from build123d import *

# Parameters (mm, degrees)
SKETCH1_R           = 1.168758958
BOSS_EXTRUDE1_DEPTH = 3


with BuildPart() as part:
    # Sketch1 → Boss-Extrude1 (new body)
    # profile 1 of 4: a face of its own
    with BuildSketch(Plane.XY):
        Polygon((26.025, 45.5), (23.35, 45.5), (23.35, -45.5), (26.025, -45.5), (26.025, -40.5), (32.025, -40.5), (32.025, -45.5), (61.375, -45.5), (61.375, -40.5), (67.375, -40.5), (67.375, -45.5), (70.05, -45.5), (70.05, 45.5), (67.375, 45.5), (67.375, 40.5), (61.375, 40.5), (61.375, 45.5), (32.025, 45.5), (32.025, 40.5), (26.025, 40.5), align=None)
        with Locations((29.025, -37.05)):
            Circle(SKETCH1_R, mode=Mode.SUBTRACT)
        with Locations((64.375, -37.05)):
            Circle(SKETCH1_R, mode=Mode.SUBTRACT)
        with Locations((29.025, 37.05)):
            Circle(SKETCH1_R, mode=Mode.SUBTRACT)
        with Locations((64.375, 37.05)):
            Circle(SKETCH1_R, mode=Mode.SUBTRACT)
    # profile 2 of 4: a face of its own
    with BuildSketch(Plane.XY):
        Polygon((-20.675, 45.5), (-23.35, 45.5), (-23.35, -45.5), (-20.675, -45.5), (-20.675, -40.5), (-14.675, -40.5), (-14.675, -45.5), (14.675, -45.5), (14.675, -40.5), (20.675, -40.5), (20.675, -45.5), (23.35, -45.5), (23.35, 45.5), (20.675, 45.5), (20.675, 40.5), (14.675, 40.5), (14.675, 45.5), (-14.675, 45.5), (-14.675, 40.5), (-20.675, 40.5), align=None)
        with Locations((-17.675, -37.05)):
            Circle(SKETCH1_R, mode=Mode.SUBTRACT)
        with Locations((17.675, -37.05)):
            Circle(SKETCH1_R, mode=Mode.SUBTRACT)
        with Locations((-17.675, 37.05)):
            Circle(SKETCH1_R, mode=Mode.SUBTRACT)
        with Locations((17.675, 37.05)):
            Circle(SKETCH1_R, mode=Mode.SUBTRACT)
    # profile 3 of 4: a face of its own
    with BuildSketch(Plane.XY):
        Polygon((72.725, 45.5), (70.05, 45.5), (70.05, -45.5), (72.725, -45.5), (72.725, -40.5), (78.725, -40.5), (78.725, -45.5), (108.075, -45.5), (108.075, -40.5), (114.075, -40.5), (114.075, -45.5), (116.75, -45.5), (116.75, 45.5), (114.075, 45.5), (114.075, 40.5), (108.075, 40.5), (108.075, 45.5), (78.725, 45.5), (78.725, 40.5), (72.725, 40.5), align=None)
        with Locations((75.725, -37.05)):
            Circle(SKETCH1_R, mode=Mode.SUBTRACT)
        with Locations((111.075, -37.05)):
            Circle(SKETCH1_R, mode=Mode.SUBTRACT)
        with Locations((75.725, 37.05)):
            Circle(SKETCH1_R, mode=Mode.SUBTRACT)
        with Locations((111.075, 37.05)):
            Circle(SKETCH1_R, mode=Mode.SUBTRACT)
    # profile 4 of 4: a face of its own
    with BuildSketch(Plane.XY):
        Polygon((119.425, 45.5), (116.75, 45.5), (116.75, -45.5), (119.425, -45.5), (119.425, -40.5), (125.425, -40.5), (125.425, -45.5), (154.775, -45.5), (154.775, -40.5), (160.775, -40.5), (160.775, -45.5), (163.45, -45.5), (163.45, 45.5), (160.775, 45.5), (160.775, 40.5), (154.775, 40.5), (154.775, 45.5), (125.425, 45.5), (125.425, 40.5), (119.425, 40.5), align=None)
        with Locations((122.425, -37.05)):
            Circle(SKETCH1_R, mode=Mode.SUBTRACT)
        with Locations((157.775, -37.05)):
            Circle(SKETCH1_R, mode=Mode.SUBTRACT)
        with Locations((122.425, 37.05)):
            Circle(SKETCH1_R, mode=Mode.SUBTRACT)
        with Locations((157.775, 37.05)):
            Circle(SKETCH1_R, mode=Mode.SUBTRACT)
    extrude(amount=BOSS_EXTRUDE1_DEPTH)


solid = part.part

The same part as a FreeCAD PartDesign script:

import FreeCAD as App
import Part
import Sketcher

V = App.Vector


def add_polygon(sketch, points):
    """Adds a closed chain of lines whose ends are joined by coincident constraints."""
    first, n = sketch.GeometryCount, len(points)
    for a, b in zip(points, points[1:] + points[:1]):
        sketch.addGeometry(Part.LineSegment(App.Vector(*a, 0), App.Vector(*b, 0)), False)
    for i in range(n):
        sketch.addConstraint(Sketcher.Constraint("Coincident", first + i, 2, first + (i + 1) % n, 1))

doc = App.newDocument("Part")
body = doc.addObject("PartDesign::Body", "Body")

# Sketch on XY plane
sketch1 = body.newObject("Sketcher::SketchObject", "Sketch")
sketch1.AttachmentSupport = (doc.getObject("XY_Plane"), [""])
sketch1.MapMode = "FlatFace"
add_polygon(sketch1, [(26.025, 45.5), (20.675, 45.5), (20.675, 40.5), (14.675, 40.5), (14.675, 45.5), (-14.675, 45.5), (-14.675, 40.5), (-20.675, 40.5), (-20.675, 45.5), (-23.35, 45.5), (-23.35, -45.5), (-20.675, -45.5), (-20.675, -40.5), (-14.675, -40.5), (-14.675, -45.5), (14.675, -45.5), (14.675, -40.5), (20.675, -40.5), (20.675, -45.5), (26.025, -45.5), (26.025, -40.5), (32.025, -40.5), (32.025, -45.5), (61.375, -45.5), (61.375, -40.5), (67.375, -40.5), (67.375, -45.5), (72.725, -45.5), (72.725, -40.5), (78.725, -40.5), (78.725, -45.5), (108.075, -45.5), (108.075, -40.5), (114.075, -40.5), (114.075, -45.5), (119.425, -45.5), (119.425, -40.5), (125.425, -40.5), (125.425, -45.5), (154.775, -45.5), (154.775, -40.5), (160.775, -40.5), (160.775, -45.5), (163.45, -45.5), (163.45, 45.5), (160.775, 45.5), (160.775, 40.5), (154.775, 40.5), (154.775, 45.5), (125.425, 45.5), (125.425, 40.5), (119.425, 40.5), (119.425, 45.5), (114.075, 45.5), (114.075, 40.5), (108.075, 40.5), (108.075, 45.5), (78.725, 45.5), (78.725, 40.5), (72.725, 40.5), (72.725, 45.5), (67.375, 45.5), (67.375, 40.5), (61.375, 40.5), (61.375, 45.5), (32.025, 45.5), (32.025, 40.5), (26.025, 40.5)])  # lines 0-67
sketch1.addGeometry(Part.Circle(V(29.025, -37.05, 0), V(0, 0, 1), 1.168759), False)  # 68
sketch1.addGeometry(Part.Circle(V(64.375, -37.05, 0), V(0, 0, 1), 1.168759), False)  # 69
sketch1.addGeometry(Part.Circle(V(29.025, 37.05, 0), V(0, 0, 1), 1.168759), False)  # 70
sketch1.addGeometry(Part.Circle(V(64.375, 37.05, 0), V(0, 0, 1), 1.168759), False)  # 71
sketch1.addGeometry(Part.Circle(V(17.675, 37.05, 0), V(0, 0, 1), 1.168759), False)  # 72
sketch1.addGeometry(Part.Circle(V(-17.675, -37.05, 0), V(0, 0, 1), 1.168759), False)  # 73
sketch1.addGeometry(Part.Circle(V(17.675, -37.05, 0), V(0, 0, 1), 1.168759), False)  # 74
sketch1.addGeometry(Part.Circle(V(-17.675, 37.05, 0), V(0, 0, 1), 1.168759), False)  # 75
sketch1.addGeometry(Part.Circle(V(111.075, 37.05, 0), V(0, 0, 1), 1.168759), False)  # 76
sketch1.addGeometry(Part.Circle(V(75.725, -37.05, 0), V(0, 0, 1), 1.168759), False)  # 77
sketch1.addGeometry(Part.Circle(V(111.075, -37.05, 0), V(0, 0, 1), 1.168759), False)  # 78
sketch1.addGeometry(Part.Circle(V(75.725, 37.05, 0), V(0, 0, 1), 1.168759), False)  # 79
sketch1.addGeometry(Part.Circle(V(157.775, 37.05, 0), V(0, 0, 1), 1.168759), False)  # 80
sketch1.addGeometry(Part.Circle(V(122.425, -37.05, 0), V(0, 0, 1), 1.168759), False)  # 81
sketch1.addGeometry(Part.Circle(V(157.775, -37.05, 0), V(0, 0, 1), 1.168759), False)  # 82
sketch1.addGeometry(Part.Circle(V(122.425, 37.05, 0), V(0, 0, 1), 1.168759), False)  # 83
sketch1.addConstraint(Sketcher.Constraint("Horizontal", 0))
sketch1.addConstraint(Sketcher.Constraint("Vertical", 1))
sketch1.addConstraint(Sketcher.Constraint("Horizontal", 2))
sketch1.addConstraint(Sketcher.Constraint("Vertical", 3))
sketch1.addConstraint(Sketcher.Constraint("Horizontal", 4))
sketch1.addConstraint(Sketcher.Constraint("Vertical", 5))
sketch1.addConstraint(Sketcher.Constraint("Horizontal", 6))
sketch1.addConstraint(Sketcher.Constraint("Vertical", 7))
sketch1.addConstraint(Sketcher.Constraint("Horizontal", 8))
sketch1.addConstraint(Sketcher.Constraint("Vertical", 9))
sketch1.addConstraint(Sketcher.Constraint("Horizontal", 10))
sketch1.addConstraint(Sketcher.Constraint("Vertical", 11))
sketch1.addConstraint(Sketcher.Constraint("Horizontal", 12))
sketch1.addConstraint(Sketcher.Constraint("Vertical", 13))
sketch1.addConstraint(Sketcher.Constraint("Horizontal", 14))
sketch1.addConstraint(Sketcher.Constraint("Vertical", 15))
sketch1.addConstraint(Sketcher.Constraint("Horizontal", 16))
sketch1.addConstraint(Sketcher.Constraint("Vertical", 17))
sketch1.addConstraint(Sketcher.Constraint("Horizontal", 18))
sketch1.addConstraint(Sketcher.Constraint("Vertical", 19))
sketch1.addConstraint(Sketcher.Constraint("Horizontal", 20))
sketch1.addConstraint(Sketcher.Constraint("Vertical", 21))
sketch1.addConstraint(Sketcher.Constraint("Horizontal", 22))
sketch1.addConstraint(Sketcher.Constraint("Vertical", 23))
sketch1.addConstraint(Sketcher.Constraint("Horizontal", 24))
sketch1.addConstraint(Sketcher.Constraint("Vertical", 25))
sketch1.addConstraint(Sketcher.Constraint("Horizontal", 26))
sketch1.addConstraint(Sketcher.Constraint("Vertical", 27))
sketch1.addConstraint(Sketcher.Constraint("Horizontal", 28))
sketch1.addConstraint(Sketcher.Constraint("Vertical", 29))
sketch1.addConstraint(Sketcher.Constraint("Horizontal", 30))
sketch1.addConstraint(Sketcher.Constraint("Vertical", 31))
sketch1.addConstraint(Sketcher.Constraint("Horizontal", 32))
sketch1.addConstraint(Sketcher.Constraint("Vertical", 33))
sketch1.addConstraint(Sketcher.Constraint("Horizontal", 34))
sketch1.addConstraint(Sketcher.Constraint("Vertical", 35))
sketch1.addConstraint(Sketcher.Constraint("Horizontal", 36))
sketch1.addConstraint(Sketcher.Constraint("Vertical", 37))
sketch1.addConstraint(Sketcher.Constraint("Horizontal", 38))
sketch1.addConstraint(Sketcher.Constraint("Vertical", 39))
sketch1.addConstraint(Sketcher.Constraint("Horizontal", 40))
sketch1.addConstraint(Sketcher.Constraint("Vertical", 41))
sketch1.addConstraint(Sketcher.Constraint("Horizontal", 42))
sketch1.addConstraint(Sketcher.Constraint("Vertical", 43))
sketch1.addConstraint(Sketcher.Constraint("Horizontal", 44))
sketch1.addConstraint(Sketcher.Constraint("Vertical", 45))
sketch1.addConstraint(Sketcher.Constraint("Horizontal", 46))
sketch1.addConstraint(Sketcher.Constraint("Vertical", 47))
sketch1.addConstraint(Sketcher.Constraint("Horizontal", 48))
sketch1.addConstraint(Sketcher.Constraint("Vertical", 49))
sketch1.addConstraint(Sketcher.Constraint("Horizontal", 50))
sketch1.addConstraint(Sketcher.Constraint("Vertical", 51))
sketch1.addConstraint(Sketcher.Constraint("Horizontal", 52))
sketch1.addConstraint(Sketcher.Constraint("Vertical", 53))
sketch1.addConstraint(Sketcher.Constraint("Horizontal", 54))
sketch1.addConstraint(Sketcher.Constraint("Vertical", 55))
sketch1.addConstraint(Sketcher.Constraint("Horizontal", 56))
sketch1.addConstraint(Sketcher.Constraint("Vertical", 57))
sketch1.addConstraint(Sketcher.Constraint("Horizontal", 58))
sketch1.addConstraint(Sketcher.Constraint("Vertical", 59))
sketch1.addConstraint(Sketcher.Constraint("Horizontal", 60))
sketch1.addConstraint(Sketcher.Constraint("Vertical", 61))
sketch1.addConstraint(Sketcher.Constraint("Horizontal", 62))
sketch1.addConstraint(Sketcher.Constraint("Vertical", 63))
sketch1.addConstraint(Sketcher.Constraint("Horizontal", 64))
sketch1.addConstraint(Sketcher.Constraint("Vertical", 65))
sketch1.addConstraint(Sketcher.Constraint("Horizontal", 66))
sketch1.addConstraint(Sketcher.Constraint("Vertical", 67))
sketch1.addConstraint(Sketcher.Constraint("Equal", 68, 69))
sketch1.addConstraint(Sketcher.Constraint("Equal", 69, 70))
sketch1.addConstraint(Sketcher.Constraint("Equal", 70, 71))
sketch1.addConstraint(Sketcher.Constraint("Equal", 71, 72))
sketch1.addConstraint(Sketcher.Constraint("Equal", 72, 73))
sketch1.addConstraint(Sketcher.Constraint("Equal", 73, 74))
sketch1.addConstraint(Sketcher.Constraint("Equal", 74, 75))
sketch1.addConstraint(Sketcher.Constraint("Equal", 75, 76))
sketch1.addConstraint(Sketcher.Constraint("Equal", 76, 77))
sketch1.addConstraint(Sketcher.Constraint("Equal", 77, 78))
sketch1.addConstraint(Sketcher.Constraint("Equal", 78, 79))
sketch1.addConstraint(Sketcher.Constraint("Equal", 79, 80))
sketch1.addConstraint(Sketcher.Constraint("Equal", 80, 81))
sketch1.addConstraint(Sketcher.Constraint("Equal", 81, 82))
sketch1.addConstraint(Sketcher.Constraint("Equal", 82, 83))
sketch1.addConstraint(Sketcher.Constraint("Symmetric", 72, 3, 73, 3, -1, 1))
sketch1.addConstraint(Sketcher.Constraint("Symmetric", 74, 3, 75, 3, -1, 1))
sketch1.addConstraint(Sketcher.Constraint("Symmetric", 0, 2, 10, 2, -1, 1))
sketch1.addConstraint(Sketcher.Constraint("Symmetric", 2, 2, 12, 2, -1, 1))
sketch1.addConstraint(Sketcher.Constraint("Symmetric", 4, 2, 14, 2, -1, 1))
sketch1.addConstraint(Sketcher.Constraint("Symmetric", 6, 2, 16, 2, -1, 1))
sketch1.addConstraint(Sketcher.Constraint("Symmetric", 73, 3, 74, 3, -2))
sketch1.addConstraint(Sketcher.Constraint("Symmetric", 2, 2, 5, 2, -2))
sketch1.addConstraint(Sketcher.Constraint("Symmetric", 0, 2, 7, 2, -2))
sketch1.addConstraint(Sketcher.Constraint("Symmetric", 68, 3, 70, 3, -1))
sketch1.addConstraint(Sketcher.Constraint("Symmetric", 69, 3, 71, 3, -1))
sketch1.addConstraint(Sketcher.Constraint("Symmetric", 76, 3, 78, 3, -1))
sketch1.addConstraint(Sketcher.Constraint("Symmetric", 77, 3, 79, 3, -1))
sketch1.addConstraint(Sketcher.Constraint("Symmetric", 80, 3, 82, 3, -1))
sketch1.addConstraint(Sketcher.Constraint("Symmetric", 81, 3, 83, 3, -1))
sketch1.addConstraint(Sketcher.Constraint("Symmetric", 41, 2, 44, 2, -1))
sketch1.addConstraint(Sketcher.Constraint("Symmetric", 39, 2, 46, 2, -1))
sketch1.addConstraint(Sketcher.Constraint("Symmetric", 37, 2, 48, 2, -1))
sketch1.addConstraint(Sketcher.Constraint("Symmetric", 35, 2, 50, 2, -1))
sketch1.addConstraint(Sketcher.Constraint("Symmetric", 33, 2, 52, 2, -1))
sketch1.addConstraint(Sketcher.Constraint("Symmetric", 31, 2, 54, 2, -1))
sketch1.addConstraint(Sketcher.Constraint("Symmetric", 29, 2, 56, 2, -1))
sketch1.addConstraint(Sketcher.Constraint("Symmetric", 27, 2, 58, 2, -1))
sketch1.addConstraint(Sketcher.Constraint("Symmetric", 25, 2, 60, 2, -1))
sketch1.addConstraint(Sketcher.Constraint("Symmetric", 23, 2, 62, 2, -1))
sketch1.addConstraint(Sketcher.Constraint("Symmetric", 21, 2, 64, 2, -1))
sketch1.addConstraint(Sketcher.Constraint("Symmetric", 19, 2, 66, 2, -1))
sketch1.addConstraint(Sketcher.Constraint("Horizontal", 68, 3, 69, 3))
sketch1.addConstraint(Sketcher.Constraint("Horizontal", 71, 3, 72, 3))
sketch1.addConstraint(Sketcher.Constraint("Horizontal", 75, 3, 76, 3))
sketch1.addConstraint(Sketcher.Constraint("Horizontal", 74, 3, 77, 3))
sketch1.addConstraint(Sketcher.Constraint("Horizontal", 79, 3, 80, 3))
sketch1.addConstraint(Sketcher.Constraint("Horizontal", 78, 3, 81, 3))
sketch1.addConstraint(Sketcher.Constraint("Horizontal", 0, 2, 3, 2))
sketch1.addConstraint(Sketcher.Constraint("Horizontal", 14, 2, 17, 2))
sketch1.addConstraint(Sketcher.Constraint("Horizontal", 16, 2, 19, 2))
sketch1.addConstraint(Sketcher.Constraint("Horizontal", 18, 2, 21, 2))
sketch1.addConstraint(Sketcher.Constraint("Horizontal", 20, 2, 23, 2))
sketch1.addConstraint(Sketcher.Constraint("Horizontal", 22, 2, 25, 2))
sketch1.addConstraint(Sketcher.Constraint("Horizontal", 24, 2, 27, 2))
sketch1.addConstraint(Sketcher.Constraint("Horizontal", 26, 2, 29, 2))
sketch1.addConstraint(Sketcher.Constraint("Horizontal", 28, 2, 31, 2))
sketch1.addConstraint(Sketcher.Constraint("Horizontal", 30, 2, 33, 2))
sketch1.addConstraint(Sketcher.Constraint("Horizontal", 32, 2, 35, 2))
sketch1.addConstraint(Sketcher.Constraint("Horizontal", 34, 2, 37, 2))
sketch1.addConstraint(Sketcher.Constraint("Horizontal", 36, 2, 39, 2))
sketch1.addConstraint(Sketcher.Constraint("Horizontal", 38, 2, 41, 2))
sketch1.addConstraint(Sketcher.Constraint("Equal", 16, 20))
sketch1.addConstraint(Sketcher.Constraint("Equal", 14, 22))
sketch1.addConstraint(Sketcher.Constraint("Equal", 20, 24))
sketch1.addConstraint(Sketcher.Constraint("Equal", 18, 26))
sketch1.addConstraint(Sketcher.Constraint("Equal", 24, 28))
sketch1.addConstraint(Sketcher.Constraint("Equal", 22, 30))
sketch1.addConstraint(Sketcher.Constraint("Equal", 28, 32))
sketch1.addConstraint(Sketcher.Constraint("Equal", 26, 34))
sketch1.addConstraint(Sketcher.Constraint("Equal", 32, 36))
sketch1.addConstraint(Sketcher.Constraint("Equal", 30, 38))
sketch1.addConstraint(Sketcher.Constraint("Equal", 36, 40))
sketch1.addConstraint(Sketcher.Constraint("Equal", 10, 42))
sketch1.addConstraint(Sketcher.Constraint("DistanceX", 2, 2, 2, 1, 6.0))
sketch1.addConstraint(Sketcher.Constraint("DistanceY", 1, 2, 1, 1, 5.0))
sketch1.addConstraint(Sketcher.Constraint("DistanceY", 9, 2, 9, 1, 91.0))
sketch1.addConstraint(Sketcher.Constraint("DistanceX", 0, 2, 0, 1, 5.35))
sketch1.addConstraint(Sketcher.Constraint("DistanceX", 4, 2, 4, 1, 29.35))
sketch1.addConstraint(Sketcher.Constraint("DistanceX", 8, 2, 8, 1, 2.675))
sketch1.addConstraint(Sketcher.Constraint("DistanceY", 68, 3, -1, 1, 37.05))
sketch1.addConstraint(Sketcher.Constraint("Diameter", 68, 2.337518))
sketch1.addConstraint(Sketcher.Constraint("DistanceX", -1, 1, 68, 3, 29.025))
sketch1.addConstraint(Sketcher.Constraint("DistanceX", -1, 1, 69, 3, 64.375))
sketch1.addConstraint(Sketcher.Constraint("DistanceX", -1, 1, 72, 3, 17.675))
sketch1.addConstraint(Sketcher.Constraint("DistanceX", -1, 1, 76, 3, 111.075))
sketch1.addConstraint(Sketcher.Constraint("DistanceX", -1, 1, 77, 3, 75.725))
sketch1.addConstraint(Sketcher.Constraint("DistanceX", -1, 1, 80, 3, 157.775))
sketch1.addConstraint(Sketcher.Constraint("DistanceX", -1, 1, 81, 3, 122.425))
pad1 = body.newObject("PartDesign::Pad", "Pad")
pad1.Profile = sketch1
pad1.Length = 3

doc.recompute()
